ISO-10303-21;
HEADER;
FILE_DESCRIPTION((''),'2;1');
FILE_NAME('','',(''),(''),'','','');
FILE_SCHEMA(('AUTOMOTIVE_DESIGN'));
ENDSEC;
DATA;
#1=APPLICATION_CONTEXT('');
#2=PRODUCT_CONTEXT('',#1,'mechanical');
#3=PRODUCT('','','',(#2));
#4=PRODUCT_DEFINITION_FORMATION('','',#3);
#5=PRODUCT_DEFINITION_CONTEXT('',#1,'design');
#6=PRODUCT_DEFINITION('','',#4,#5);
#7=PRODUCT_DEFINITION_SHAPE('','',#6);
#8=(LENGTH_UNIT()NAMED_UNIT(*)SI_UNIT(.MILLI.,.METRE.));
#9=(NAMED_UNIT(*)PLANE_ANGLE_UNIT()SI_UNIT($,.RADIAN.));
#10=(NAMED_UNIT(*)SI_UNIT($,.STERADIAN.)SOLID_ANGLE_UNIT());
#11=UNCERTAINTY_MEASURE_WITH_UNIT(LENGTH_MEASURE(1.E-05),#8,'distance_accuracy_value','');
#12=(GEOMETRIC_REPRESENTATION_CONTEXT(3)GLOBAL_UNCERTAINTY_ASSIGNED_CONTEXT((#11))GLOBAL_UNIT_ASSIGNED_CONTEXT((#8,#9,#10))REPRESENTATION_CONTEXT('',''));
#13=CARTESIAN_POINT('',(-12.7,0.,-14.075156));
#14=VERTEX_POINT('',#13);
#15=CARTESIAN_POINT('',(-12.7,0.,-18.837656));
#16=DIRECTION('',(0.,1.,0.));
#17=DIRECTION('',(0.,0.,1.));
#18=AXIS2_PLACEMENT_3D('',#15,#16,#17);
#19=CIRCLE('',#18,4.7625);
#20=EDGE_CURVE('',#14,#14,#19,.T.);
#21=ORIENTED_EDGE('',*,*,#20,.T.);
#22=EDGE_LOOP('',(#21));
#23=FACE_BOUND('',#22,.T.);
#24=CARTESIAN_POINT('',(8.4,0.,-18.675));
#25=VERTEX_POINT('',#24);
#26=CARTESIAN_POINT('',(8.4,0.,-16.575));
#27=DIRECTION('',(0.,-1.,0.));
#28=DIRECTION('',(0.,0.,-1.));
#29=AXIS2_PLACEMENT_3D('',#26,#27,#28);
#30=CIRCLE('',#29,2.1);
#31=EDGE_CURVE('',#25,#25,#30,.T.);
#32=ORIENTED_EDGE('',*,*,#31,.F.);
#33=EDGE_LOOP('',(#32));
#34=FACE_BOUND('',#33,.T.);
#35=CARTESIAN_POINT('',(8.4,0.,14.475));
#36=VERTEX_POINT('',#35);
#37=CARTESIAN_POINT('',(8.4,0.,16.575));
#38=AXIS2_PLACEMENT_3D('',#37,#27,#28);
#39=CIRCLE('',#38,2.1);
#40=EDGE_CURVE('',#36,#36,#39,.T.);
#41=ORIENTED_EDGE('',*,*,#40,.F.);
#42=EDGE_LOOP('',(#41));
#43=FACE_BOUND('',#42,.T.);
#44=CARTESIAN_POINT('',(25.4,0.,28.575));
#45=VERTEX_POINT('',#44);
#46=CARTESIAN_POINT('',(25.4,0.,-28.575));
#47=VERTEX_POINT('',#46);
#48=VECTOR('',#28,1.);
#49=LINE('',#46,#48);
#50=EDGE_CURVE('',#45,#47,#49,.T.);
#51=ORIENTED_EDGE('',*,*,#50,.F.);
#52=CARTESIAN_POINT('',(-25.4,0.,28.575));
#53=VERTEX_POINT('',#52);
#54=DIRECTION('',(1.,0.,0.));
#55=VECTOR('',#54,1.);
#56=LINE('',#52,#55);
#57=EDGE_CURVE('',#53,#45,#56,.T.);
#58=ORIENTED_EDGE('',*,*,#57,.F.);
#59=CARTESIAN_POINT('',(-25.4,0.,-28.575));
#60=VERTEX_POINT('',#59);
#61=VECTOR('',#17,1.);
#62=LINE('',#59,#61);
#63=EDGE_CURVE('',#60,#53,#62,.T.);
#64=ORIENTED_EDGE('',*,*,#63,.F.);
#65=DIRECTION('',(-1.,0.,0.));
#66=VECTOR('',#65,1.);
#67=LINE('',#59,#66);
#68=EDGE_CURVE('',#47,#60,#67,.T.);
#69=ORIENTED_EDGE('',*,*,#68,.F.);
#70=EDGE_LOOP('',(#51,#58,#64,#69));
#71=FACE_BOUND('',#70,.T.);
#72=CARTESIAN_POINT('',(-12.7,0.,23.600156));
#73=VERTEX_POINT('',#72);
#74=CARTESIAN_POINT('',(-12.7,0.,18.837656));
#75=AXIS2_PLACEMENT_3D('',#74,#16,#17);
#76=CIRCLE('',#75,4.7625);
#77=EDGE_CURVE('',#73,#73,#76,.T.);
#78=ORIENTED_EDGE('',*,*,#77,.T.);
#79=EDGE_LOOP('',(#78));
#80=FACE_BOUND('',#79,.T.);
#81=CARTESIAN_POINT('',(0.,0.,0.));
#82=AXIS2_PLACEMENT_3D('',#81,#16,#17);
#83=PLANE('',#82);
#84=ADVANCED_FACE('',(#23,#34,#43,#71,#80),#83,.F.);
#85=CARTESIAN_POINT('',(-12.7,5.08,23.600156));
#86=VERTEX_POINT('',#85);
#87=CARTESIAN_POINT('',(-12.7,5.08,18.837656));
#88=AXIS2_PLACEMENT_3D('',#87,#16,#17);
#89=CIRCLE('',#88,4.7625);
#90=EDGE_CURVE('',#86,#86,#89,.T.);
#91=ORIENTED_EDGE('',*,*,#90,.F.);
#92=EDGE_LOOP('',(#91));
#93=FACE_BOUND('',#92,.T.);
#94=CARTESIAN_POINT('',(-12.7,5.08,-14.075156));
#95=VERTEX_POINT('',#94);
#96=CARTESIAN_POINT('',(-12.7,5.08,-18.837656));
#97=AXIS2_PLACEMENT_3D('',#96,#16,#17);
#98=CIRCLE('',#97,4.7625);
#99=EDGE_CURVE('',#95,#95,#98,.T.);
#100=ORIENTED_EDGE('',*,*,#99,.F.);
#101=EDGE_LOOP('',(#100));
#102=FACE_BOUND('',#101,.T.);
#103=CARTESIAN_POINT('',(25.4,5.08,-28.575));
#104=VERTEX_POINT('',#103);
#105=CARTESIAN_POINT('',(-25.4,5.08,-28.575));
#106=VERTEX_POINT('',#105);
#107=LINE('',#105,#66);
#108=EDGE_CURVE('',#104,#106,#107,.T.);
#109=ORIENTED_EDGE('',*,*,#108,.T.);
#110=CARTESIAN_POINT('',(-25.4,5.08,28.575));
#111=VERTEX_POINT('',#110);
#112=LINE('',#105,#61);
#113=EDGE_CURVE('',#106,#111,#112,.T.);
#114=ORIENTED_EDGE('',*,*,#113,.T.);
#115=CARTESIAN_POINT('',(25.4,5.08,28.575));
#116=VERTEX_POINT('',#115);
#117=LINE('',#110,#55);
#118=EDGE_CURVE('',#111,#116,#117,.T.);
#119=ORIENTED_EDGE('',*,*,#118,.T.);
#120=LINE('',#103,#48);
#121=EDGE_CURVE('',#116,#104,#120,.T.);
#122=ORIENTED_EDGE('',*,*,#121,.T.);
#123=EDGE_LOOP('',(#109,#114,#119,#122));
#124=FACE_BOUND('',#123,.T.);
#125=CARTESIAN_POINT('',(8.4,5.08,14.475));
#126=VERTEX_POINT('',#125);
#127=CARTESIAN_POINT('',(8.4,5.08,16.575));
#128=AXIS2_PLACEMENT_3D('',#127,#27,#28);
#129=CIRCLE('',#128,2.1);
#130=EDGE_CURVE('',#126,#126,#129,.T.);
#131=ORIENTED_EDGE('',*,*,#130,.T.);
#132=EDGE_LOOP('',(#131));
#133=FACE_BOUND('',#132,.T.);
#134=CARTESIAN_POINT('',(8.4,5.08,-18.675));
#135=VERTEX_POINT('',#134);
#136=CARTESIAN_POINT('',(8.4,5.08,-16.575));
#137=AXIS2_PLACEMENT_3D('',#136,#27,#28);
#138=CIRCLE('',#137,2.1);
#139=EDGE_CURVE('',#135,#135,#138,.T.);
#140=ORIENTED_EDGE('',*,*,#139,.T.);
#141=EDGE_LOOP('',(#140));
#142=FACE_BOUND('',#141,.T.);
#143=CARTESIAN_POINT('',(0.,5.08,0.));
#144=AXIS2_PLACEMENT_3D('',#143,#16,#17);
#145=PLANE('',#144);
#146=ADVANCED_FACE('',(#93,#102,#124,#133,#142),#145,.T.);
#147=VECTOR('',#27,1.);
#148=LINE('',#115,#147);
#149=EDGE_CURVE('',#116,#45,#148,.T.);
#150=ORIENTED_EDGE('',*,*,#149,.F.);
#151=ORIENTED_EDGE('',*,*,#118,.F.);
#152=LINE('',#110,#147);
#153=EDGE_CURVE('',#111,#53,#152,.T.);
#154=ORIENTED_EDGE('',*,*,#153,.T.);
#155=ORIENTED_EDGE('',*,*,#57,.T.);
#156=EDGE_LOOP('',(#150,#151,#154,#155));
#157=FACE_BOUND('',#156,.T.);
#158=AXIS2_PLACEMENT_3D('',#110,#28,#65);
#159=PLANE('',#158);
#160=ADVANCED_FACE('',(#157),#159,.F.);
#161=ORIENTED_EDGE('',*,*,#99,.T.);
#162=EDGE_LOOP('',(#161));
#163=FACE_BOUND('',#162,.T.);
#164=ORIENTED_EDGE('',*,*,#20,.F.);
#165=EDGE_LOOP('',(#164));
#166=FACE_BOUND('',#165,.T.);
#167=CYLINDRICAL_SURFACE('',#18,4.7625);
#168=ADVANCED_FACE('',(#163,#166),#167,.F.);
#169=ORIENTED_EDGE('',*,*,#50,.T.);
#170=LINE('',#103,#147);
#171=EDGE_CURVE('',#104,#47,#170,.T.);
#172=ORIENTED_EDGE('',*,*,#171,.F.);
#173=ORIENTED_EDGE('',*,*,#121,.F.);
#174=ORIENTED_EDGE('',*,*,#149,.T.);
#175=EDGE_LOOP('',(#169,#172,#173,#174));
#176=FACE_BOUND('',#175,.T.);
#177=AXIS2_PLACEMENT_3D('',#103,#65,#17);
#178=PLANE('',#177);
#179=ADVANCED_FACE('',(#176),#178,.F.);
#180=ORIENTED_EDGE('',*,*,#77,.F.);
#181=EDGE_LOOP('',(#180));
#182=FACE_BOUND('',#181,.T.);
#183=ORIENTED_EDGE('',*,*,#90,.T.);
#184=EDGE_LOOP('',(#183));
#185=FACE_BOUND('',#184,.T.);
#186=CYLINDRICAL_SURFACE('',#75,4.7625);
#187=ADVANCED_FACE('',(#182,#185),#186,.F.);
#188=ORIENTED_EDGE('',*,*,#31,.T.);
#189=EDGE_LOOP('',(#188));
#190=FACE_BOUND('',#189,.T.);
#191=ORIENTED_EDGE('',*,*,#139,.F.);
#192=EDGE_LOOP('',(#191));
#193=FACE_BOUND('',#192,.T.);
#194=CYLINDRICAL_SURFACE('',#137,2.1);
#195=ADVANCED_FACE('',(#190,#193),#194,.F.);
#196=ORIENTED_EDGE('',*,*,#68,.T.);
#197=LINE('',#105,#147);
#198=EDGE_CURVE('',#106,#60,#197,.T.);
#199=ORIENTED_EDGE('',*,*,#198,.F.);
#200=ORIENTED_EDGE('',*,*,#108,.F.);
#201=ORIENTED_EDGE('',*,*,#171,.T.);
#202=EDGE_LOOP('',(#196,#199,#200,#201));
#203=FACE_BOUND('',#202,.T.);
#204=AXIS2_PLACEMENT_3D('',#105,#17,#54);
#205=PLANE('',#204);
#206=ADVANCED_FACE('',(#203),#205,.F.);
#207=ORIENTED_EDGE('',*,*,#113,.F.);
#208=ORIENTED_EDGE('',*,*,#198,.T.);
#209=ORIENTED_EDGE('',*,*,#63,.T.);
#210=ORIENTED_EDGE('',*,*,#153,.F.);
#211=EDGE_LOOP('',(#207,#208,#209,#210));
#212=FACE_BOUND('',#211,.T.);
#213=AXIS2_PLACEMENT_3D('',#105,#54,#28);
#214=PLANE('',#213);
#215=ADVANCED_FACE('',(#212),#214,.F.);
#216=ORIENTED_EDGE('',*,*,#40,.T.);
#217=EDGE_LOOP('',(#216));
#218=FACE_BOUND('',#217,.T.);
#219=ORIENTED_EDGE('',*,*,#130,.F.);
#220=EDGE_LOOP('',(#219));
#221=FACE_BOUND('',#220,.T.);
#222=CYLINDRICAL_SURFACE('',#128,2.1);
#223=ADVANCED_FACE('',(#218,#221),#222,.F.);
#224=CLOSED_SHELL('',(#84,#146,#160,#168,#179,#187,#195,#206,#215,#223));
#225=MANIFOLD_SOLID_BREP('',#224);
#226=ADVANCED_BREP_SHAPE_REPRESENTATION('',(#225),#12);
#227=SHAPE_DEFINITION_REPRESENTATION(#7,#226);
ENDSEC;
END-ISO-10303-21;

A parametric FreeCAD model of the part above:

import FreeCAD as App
import Part
import Sketcher
Q = App.Units.Quantity

doc = App.newDocument("Part")
body = doc.addObject("PartDesign::Body", "Body")

# Sketch on XZ plane
sketch1 = body.newObject("Sketcher::SketchObject", "Sketch")
sketch1.AttachmentSupport = (doc.getObject("XZ_Plane"), [""])
sketch1.MapMode = "FlatFace"
sketch1.addGeometry(Part.LineSegment(App.Vector(-25, -29, 0), App.Vector(-25, 29, 0)), False)
sketch1.addGeometry(Part.LineSegment(App.Vector(-25, 29, 0), App.Vector(25, 29, 0)), False)
sketch1.addGeometry(Part.LineSegment(App.Vector(25, 29, 0), App.Vector(25, -29, 0)), False)
sketch1.addGeometry(Part.LineSegment(App.Vector(25, -29, 0), App.Vector(-25, -29, 0)), False)
sketch1.addConstraint(Sketcher.Constraint("Coincident", 0, 2, 1, 1))
sketch1.addConstraint(Sketcher.Constraint("Coincident", 1, 2, 2, 1))
sketch1.addConstraint(Sketcher.Constraint("Coincident", 2, 2, 3, 1))
sketch1.addConstraint(Sketcher.Constraint("Coincident", 3, 2, 0, 1))
sketch1.addConstraint(Sketcher.Constraint("Vertical", 0))
sketch1.addConstraint(Sketcher.Constraint("Horizontal", 1))
sketch1.addConstraint(Sketcher.Constraint("Vertical", 2))
sketch1.addConstraint(Sketcher.Constraint("Horizontal", 3))
sketch1.addConstraint(Sketcher.Constraint("Symmetric", 0, 2, 2, 2, -1, 1))
sketch1.addConstraint(Sketcher.Constraint("DistanceX", 1, 1, 1, 2, Q("2 in")))
sketch1.addConstraint(Sketcher.Constraint("DistanceY", 0, 1, 0, 2, Q("2.25 in")))
pad1 = body.newObject("PartDesign::Pad", "Pad")
pad1.Profile = sketch1
pad1.Length = Q("0.2 in")
pad1.Reversed = True

# Sketch on XZ plane
sketch2 = body.newObject("Sketcher::SketchObject", "Sketch001")
sketch2.AttachmentSupport = (doc.getObject("XZ_Plane"), [""])
sketch2.MapMode = "FlatFace"
sketch2.AttachmentOffset = App.Placement(App.Vector(0, 0, -0.2 * 25.4), App.Rotation())
sketch2.addGeometry(Part.Circle(App.Vector(-12.7, -18.8, 0), App.Vector(0, 0, 1), 4.8), False)
sketch2.addGeometry(Part.Circle(App.Vector(-12.7, 18.8, 0), App.Vector(0, 0, 1), 4.8), False)
sketch2.addConstraint(Sketcher.Constraint("Equal", 0, 1))
sketch2.addConstraint(Sketcher.Constraint("Symmetric", 0, 3, 1, 3, -1))
sketch2.addConstraint(Sketcher.Constraint("Diameter", 0, Q("0.375 in")))
sketch2.addConstraint(Sketcher.Constraint("DistanceX", 0, 3, -1, 1, Q("0.5 in")))
sketch2.addConstraint(Sketcher.Constraint("DistanceY", 0, 3, 1, 3, Q("37.675312 mm")))
pocket1 = body.newObject("PartDesign::Pocket", "Pocket")
pocket1.Profile = sketch2
pocket1.Length = Q("0.2 in")
pocket1.Reversed = True

# Sketch on XZ plane
sketch3 = body.newObject("Sketcher::SketchObject", "Sketch002")
sketch3.AttachmentSupport = (doc.getObject("XZ_Plane"), [""])
sketch3.MapMode = "FlatFace"
sketch3.addGeometry(Part.Circle(App.Vector(8.4, -16.6, 0), App.Vector(0, 0, 1), 2.1), False)
sketch3.addGeometry(Part.Circle(App.Vector(8.4, 16.6, 0), App.Vector(0, 0, 1), 2.1), False)
sketch3.addConstraint(Sketcher.Constraint("Equal", 0, 1))
sketch3.addConstraint(Sketcher.Constraint("Symmetric", 0, 3, 1, 3, -1))
sketch3.addConstraint(Sketcher.Constraint("Diameter", 0, Q("4.2 mm")))
sketch3.addConstraint(Sketcher.Constraint("DistanceX", -1, 1, 0, 3, Q("8.4 mm")))
sketch3.addConstraint(Sketcher.Constraint("DistanceY", 0, 3, -1, 1, Q("16.575 mm")))
pocket2 = body.newObject("PartDesign::Pocket", "Pocket001")
pocket2.Profile = sketch3
pocket2.Type = "ThroughAll"

doc.recompute()
